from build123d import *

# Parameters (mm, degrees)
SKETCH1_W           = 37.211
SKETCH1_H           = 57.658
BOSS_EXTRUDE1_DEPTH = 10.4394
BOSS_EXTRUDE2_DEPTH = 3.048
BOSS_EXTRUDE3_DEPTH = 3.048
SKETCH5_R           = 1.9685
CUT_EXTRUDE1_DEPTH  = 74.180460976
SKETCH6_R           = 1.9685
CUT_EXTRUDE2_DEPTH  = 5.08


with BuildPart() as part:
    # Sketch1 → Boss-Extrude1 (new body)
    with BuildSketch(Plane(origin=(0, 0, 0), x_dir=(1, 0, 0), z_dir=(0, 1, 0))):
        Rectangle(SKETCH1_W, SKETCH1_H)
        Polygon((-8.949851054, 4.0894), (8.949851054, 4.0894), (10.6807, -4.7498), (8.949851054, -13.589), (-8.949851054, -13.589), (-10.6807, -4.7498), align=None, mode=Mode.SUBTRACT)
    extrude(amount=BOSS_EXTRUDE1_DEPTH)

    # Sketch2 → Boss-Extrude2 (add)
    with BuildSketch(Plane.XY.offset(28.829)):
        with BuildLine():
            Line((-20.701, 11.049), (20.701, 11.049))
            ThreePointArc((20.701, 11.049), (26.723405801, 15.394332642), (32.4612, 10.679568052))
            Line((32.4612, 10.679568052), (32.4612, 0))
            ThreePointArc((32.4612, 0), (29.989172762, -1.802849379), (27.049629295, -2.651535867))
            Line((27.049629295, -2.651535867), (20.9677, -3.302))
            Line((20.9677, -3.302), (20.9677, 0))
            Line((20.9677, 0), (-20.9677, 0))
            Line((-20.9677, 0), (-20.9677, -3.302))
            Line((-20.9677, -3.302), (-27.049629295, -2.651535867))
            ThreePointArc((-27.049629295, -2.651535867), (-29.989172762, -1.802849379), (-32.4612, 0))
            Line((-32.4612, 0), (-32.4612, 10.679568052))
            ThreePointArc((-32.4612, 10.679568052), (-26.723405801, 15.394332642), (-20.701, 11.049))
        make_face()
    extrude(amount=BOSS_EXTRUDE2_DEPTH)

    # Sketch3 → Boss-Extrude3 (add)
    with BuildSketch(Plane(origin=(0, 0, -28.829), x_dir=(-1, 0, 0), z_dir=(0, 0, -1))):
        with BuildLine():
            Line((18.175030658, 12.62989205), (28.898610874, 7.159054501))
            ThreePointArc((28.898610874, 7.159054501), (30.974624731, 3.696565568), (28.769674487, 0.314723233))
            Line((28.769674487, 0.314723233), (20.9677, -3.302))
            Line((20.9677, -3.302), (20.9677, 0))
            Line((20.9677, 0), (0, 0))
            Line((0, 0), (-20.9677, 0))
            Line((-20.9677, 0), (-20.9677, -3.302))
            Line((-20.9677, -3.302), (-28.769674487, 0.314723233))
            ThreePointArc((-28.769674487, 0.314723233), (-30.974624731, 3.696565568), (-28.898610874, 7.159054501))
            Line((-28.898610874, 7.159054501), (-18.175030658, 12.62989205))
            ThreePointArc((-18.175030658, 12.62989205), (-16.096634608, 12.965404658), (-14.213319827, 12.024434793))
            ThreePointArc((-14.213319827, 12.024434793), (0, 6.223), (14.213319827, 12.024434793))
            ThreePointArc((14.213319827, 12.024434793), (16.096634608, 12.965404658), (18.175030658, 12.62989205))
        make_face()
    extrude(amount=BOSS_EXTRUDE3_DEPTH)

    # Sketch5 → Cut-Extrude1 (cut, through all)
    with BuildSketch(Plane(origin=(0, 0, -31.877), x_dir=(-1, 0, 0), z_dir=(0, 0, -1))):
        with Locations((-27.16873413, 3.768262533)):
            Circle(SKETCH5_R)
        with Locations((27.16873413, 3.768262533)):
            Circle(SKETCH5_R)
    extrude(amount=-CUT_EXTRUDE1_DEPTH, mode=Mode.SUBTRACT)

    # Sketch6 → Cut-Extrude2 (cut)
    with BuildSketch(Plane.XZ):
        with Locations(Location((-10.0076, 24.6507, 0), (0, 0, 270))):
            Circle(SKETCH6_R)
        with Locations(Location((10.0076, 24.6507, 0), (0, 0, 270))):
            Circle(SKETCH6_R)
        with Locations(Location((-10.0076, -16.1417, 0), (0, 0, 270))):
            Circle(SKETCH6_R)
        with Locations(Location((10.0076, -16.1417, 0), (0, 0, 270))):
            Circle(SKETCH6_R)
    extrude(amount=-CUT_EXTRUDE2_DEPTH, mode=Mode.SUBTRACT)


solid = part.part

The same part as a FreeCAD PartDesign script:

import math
import FreeCAD as App
import Part
import Sketcher

V = App.Vector
Q = App.Units.Quantity


def add_polygon(sketch, points):
    """Adds a closed chain of lines whose ends are joined by coincident constraints."""
    first, n = sketch.GeometryCount, len(points)
    for a, b in zip(points, points[1:] + points[:1]):
        sketch.addGeometry(Part.LineSegment(App.Vector(*a, 0), App.Vector(*b, 0)), False)
    for i in range(n):
        sketch.addConstraint(Sketcher.Constraint("Coincident", first + i, 2, first + (i + 1) % n, 1))

doc = App.newDocument("Part")
body = doc.addObject("PartDesign::Body", "Body")

sketch1 = doc.addObject("Sketcher::SketchObject", "Sketch")
body.addObject(sketch1)
sketch1.AttachmentSupport = (doc.XZ_Plane, [""])
sketch1.MapMode = "FlatFace"
add_polygon(sketch1, [(-19, -29), (-19, 29), (19, 29), (19, -29)])
add_polygon(sketch1, [(-11, 5), (-9, -4), (9, -4), (11, 5), (9, 14), (-9, 14)])
sketch1.addConstraint(Sketcher.Constraint("Vertical", 0))
sketch1.addConstraint(Sketcher.Constraint("Horizontal", 1))
sketch1.addConstraint(Sketcher.Constraint("Vertical", 2))
sketch1.addConstraint(Sketcher.Constraint("Horizontal", 3))
sketch1.addConstraint(Sketcher.Constraint("Horizontal", 5))
sketch1.addConstraint(Sketcher.Constraint("Horizontal", 8))
sketch1.addConstraint(Sketcher.Constraint("Symmetric", 0, 2, 2, 2, -1, 1))
sketch1.addConstraint(Sketcher.Constraint("Symmetric", 6, 2, 9, 2, -2))
sketch1.addConstraint(Sketcher.Constraint("Parallel", 4, 7))
sketch1.addConstraint(Sketcher.Constraint("Parallel", 6, 9))
sketch1.addConstraint(Sketcher.Constraint("Vertical", 5, 2, 7, 2))
sketch1.addConstraint(Sketcher.Constraint("Vertical", 4, 2, 8, 2))
sketch1.addConstraint(Sketcher.Constraint("DistanceY", 0, 1, 0, 2, Q("2.27 in")))
sketch1.addConstraint(Sketcher.Constraint("DistanceY", 7, 2, 1, 2, Q("0.6 in")))
sketch1.addConstraint(Sketcher.Constraint("DistanceX", 1, 1, 1, 2, Q("1.465 in")))
sketch1.addConstraint(Sketcher.Constraint("DistanceY", 4, 2, -1, 1, Q("0.161 in")))
sketch1.addConstraint(Sketcher.Constraint("DistanceX", 6, 2, 1, 2, Q("0.312 in")))
sketch1.addConstraint(Sketcher.Constraint("Distance", 4, 9.007069))
pad1 = doc.addObject("PartDesign::Pad", "Pad")
body.addObject(pad1)
pad1.Profile = sketch1
pad1.Length = Q("0.411 in")
pad1.Reversed = True

sketch2 = doc.addObject("Sketcher::SketchObject", "Sketch001")
body.addObject(sketch2)
sketch2.AttachmentSupport = (doc.XY_Plane, [""])
sketch2.MapMode = "FlatFace"
sketch2.AttachmentOffset = App.Placement(V(0, 0, 1.135 * 25.4), App.Rotation())
sketch2.addGeometry(Part.LineSegment(V(20.7, 11, 0), V(-20.7, 11, 0)), False)
sketch2.addGeometry(Part.ArcOfCircle(Part.Circle(V(-26.5, 9.3, 0), V(0, 0, 1), 6.1), math.radians(17), math.radians(167)), False)
sketch2.addGeometry(Part.LineSegment(V(-32.5, 10.7, 0), V(-32.5, 0, 0)), False)
sketch2.addGeometry(Part.ArcOfCircle(Part.Circle(V(-26.1, 6.1, 0), V(0, 0, 1), 8.8), math.radians(-136), math.radians(-96)), False)
sketch2.addGeometry(Part.LineSegment(V(-27, -2.7, 0), V(-21, -3.3, 0)), False)
sketch2.addGeometry(Part.LineSegment(V(-21, -3.3, 0), V(-21, 0, 0)), False)
sketch2.addGeometry(Part.LineSegment(V(-21, 0, 0), V(21, 0, 0)), False)
sketch2.addGeometry(Part.LineSegment(V(21, 0, 0), V(21, -3.3, 0)), False)
sketch2.addGeometry(Part.LineSegment(V(21, -3.3, 0), V(27, -2.7, 0)), False)
sketch2.addGeometry(Part.ArcOfCircle(Part.Circle(V(26.1, 6.1, 0), V(0, 0, 1), 8.8), math.radians(-84), math.radians(-44)), False)
sketch2.addGeometry(Part.LineSegment(V(32.5, 0, 0), V(32.5, 10.7, 0)), False)
sketch2.addGeometry(Part.ArcOfCircle(Part.Circle(V(26.5, 9.3, 0), V(0, 0, 1), 6.1), math.radians(13), math.radians(163)), False)
sketch2.addConstraint(Sketcher.Constraint("Coincident", 0, 2, 1, 1))
sketch2.addConstraint(Sketcher.Constraint("Coincident", 1, 2, 2, 1))
sketch2.addConstraint(Sketcher.Constraint("Coincident", 2, 2, 3, 1))
sketch2.addConstraint(Sketcher.Constraint("Tangent", 3, 2, 4, 1))
sketch2.addConstraint(Sketcher.Constraint("Coincident", 4, 2, 5, 1))
sketch2.addConstraint(Sketcher.Constraint("Coincident", 5, 2, 6, 1))
sketch2.addConstraint(Sketcher.Constraint("Coincident", 6, 2, 7, 1))
sketch2.addConstraint(Sketcher.Constraint("Coincident", 7, 2, 8, 1))
sketch2.addConstraint(Sketcher.Constraint("Tangent", 8, 2, 9, 1))
sketch2.addConstraint(Sketcher.Constraint("Coincident", 9, 2, 10, 1))
sketch2.addConstraint(Sketcher.Constraint("Coincident", 10, 2, 11, 1))
sketch2.addConstraint(Sketcher.Constraint("Coincident", 11, 2, 0, 1))
sketch2.addConstraint(Sketcher.Constraint("Horizontal", 0))
sketch2.addConstraint(Sketcher.Constraint("Vertical", 2))
sketch2.addConstraint(Sketcher.Constraint("Vertical", 5))
sketch2.addConstraint(Sketcher.Constraint("Horizontal", 6))
sketch2.addConstraint(Sketcher.Constraint("Vertical", 7))
sketch2.addConstraint(Sketcher.Constraint("Vertical", 10))
sketch2.addConstraint(Sketcher.Constraint("Equal", 3, 9))
sketch2.addConstraint(Sketcher.Constraint("Equal", 1, 11))
sketch2.addConstraint(Sketcher.Constraint("Symmetric", 5, 2, 6, 2, -1, 1))
sketch2.addConstraint(Sketcher.Constraint("Symmetric", 2, 2, 9, 2, -1, 1))
sketch2.addConstraint(Sketcher.Constraint("Symmetric", 3, 3, 9, 3, -2))
sketch2.addConstraint(Sketcher.Constraint("Symmetric", 1, 3, 11, 3, -2))
sketch2.addConstraint(Sketcher.Constraint("Horizontal", 4, 2, 7, 2))
sketch2.addConstraint(Sketcher.Constraint("DistanceX", 0, 2, 0, 1, Q("1.63 in")))
sketch2.addConstraint(Sketcher.Constraint("DistanceY", 5, 1, 5, 2, Q("0.13 in")))
sketch2.addConstraint(Sketcher.Constraint("DistanceX", 6, 1, 6, 2, Q("1.651 in")))
sketch2.addConstraint(Sketcher.Constraint("DistanceY", -1, 1, 0, 2, Q("0.435 in")))
sketch2.addConstraint(Sketcher.Constraint("DistanceX", 1, 2, -1, 1, Q("1.278 in")))
sketch2.addConstraint(Sketcher.Constraint("Radius", 1, 6.084272))
sketch2.addConstraint(Sketcher.Constraint("Radius", 3, 8.810168))
sketch2.addConstraint(Sketcher.Constraint("DistanceY", 2, 2, 2, 1, 10.679568))
sketch2.addConstraint(Sketcher.Constraint("DistanceX", 3, 2, -1, 1, 27.049629))
pad2 = doc.addObject("PartDesign::Pad", "Pad001")
body.addObject(pad2)
pad2.Profile = sketch2
pad2.Length = Q("0.12 in")

sketch3 = doc.addObject("Sketcher::SketchObject", "Sketch002")
body.addObject(sketch3)
sketch3.AttachmentSupport = (doc.XY_Plane, [""])
sketch3.MapMode = "FlatFace"
sketch3.AttachmentOffset = App.Placement(V(0, 0, -1.135 * 25.4), App.Rotation())
sketch3.addGeometry(Part.LineSegment(V(-28.9, 7.2, 0), V(-18.2, 12.6, 0)), False)
sketch3.addGeometry(Part.ArcOfCircle(Part.Circle(V(-16.6, 9.6, 0), V(0, 0, 1), 3.4), math.radians(46), math.radians(117)), False)
sketch3.addGeometry(Part.ArcOfCircle(Part.Circle(V(0, 26.5, 0), V(0, 0, 1), 20.3), math.radians(-134), math.radians(-46)), False)
sketch3.addGeometry(Part.ArcOfCircle(Part.Circle(V(16.6, 9.6, 0), V(0, 0, 1), 3.4), math.radians(63), math.radians(134)), False)
sketch3.addGeometry(Part.LineSegment(V(18.2, 12.6, 0), V(28.9, 7.2, 0)), False)
sketch3.addGeometry(Part.ArcOfCircle(Part.Circle(V(27.2, 3.8, 0), V(0, 0, 1), 3.8), math.radians(-65), math.radians(63)), False)
sketch3.addGeometry(Part.LineSegment(V(28.8, 0.3, 0), V(21, -3.3, 0)), False)
sketch3.addGeometry(Part.LineSegment(V(21, -3.3, 0), V(21, 0, 0)), False)
sketch3.addGeometry(Part.LineSegment(V(21, 0, 0), V(-21, 0, 0)), False)
sketch3.addGeometry(Part.LineSegment(V(-21, 0, 0), V(-21, -3.3, 0)), False)
sketch3.addGeometry(Part.LineSegment(V(-21, -3.3, 0), V(-28.8, 0.3, 0)), False)
sketch3.addGeometry(Part.ArcOfCircle(Part.Circle(V(-27.2, 3.8, 0), V(0, 0, 1), 3.8), math.radians(117), math.radians(245)), False)
sketch3.addConstraint(Sketcher.Constraint("Tangent", 0, 2, 1, 2))
sketch3.addConstraint(Sketcher.Constraint("Tangent", 1, 1, 2, 1))
sketch3.addConstraint(Sketcher.Constraint("Tangent", 2, 2, 3, 2))
sketch3.addConstraint(Sketcher.Constraint("Tangent", 3, 1, 4, 1))
sketch3.addConstraint(Sketcher.Constraint("Tangent", 4, 2, 5, 2))
sketch3.addConstraint(Sketcher.Constraint("Tangent", 5, 1, 6, 1))
sketch3.addConstraint(Sketcher.Constraint("Coincident", 6, 2, 7, 1))
sketch3.addConstraint(Sketcher.Constraint("Coincident", 7, 2, 8, 1))
sketch3.addConstraint(Sketcher.Constraint("Coincident", 8, 2, 9, 1))
sketch3.addConstraint(Sketcher.Constraint("Coincident", 9, 2, 10, 1))
sketch3.addConstraint(Sketcher.Constraint("Tangent", 10, 2, 11, 2))
sketch3.addConstraint(Sketcher.Constraint("Tangent", 11, 1, 0, 1))
sketch3.addConstraint(Sketcher.Constraint("Vertical", 7))
sketch3.addConstraint(Sketcher.Constraint("Horizontal", 8))
sketch3.addConstraint(Sketcher.Constraint("Vertical", 9))
sketch3.addConstraint(Sketcher.Constraint("Equal", 1, 3))
sketch3.addConstraint(Sketcher.Constraint("Equal", 5, 11))
sketch3.addConstraint(Sketcher.Constraint("Symmetric", 7, 2, 8, 2, -1, 1))
sketch3.addConstraint(Sketcher.Constraint("Symmetric", 1, 3, 3, 3, -2))
sketch3.addConstraint(Sketcher.Constraint("Symmetric", 5, 3, 11, 3, -2))
sketch3.addConstraint(Sketcher.Constraint("Horizontal", 6, 2, 9, 2))
sketch3.addConstraint(Sketcher.Constraint("DistanceY", 7, 1, 7, 2, Q("0.13 in")))
sketch3.addConstraint(Sketcher.Constraint("DistanceX", 8, 2, 8, 1, Q("1.651 in")))
sketch3.addConstraint(Sketcher.Constraint("Radius", 1, 3.432423))
sketch3.addConstraint(Sketcher.Constraint("Radius", 2, 20.311795))
sketch3.addConstraint(Sketcher.Constraint("Radius", 5, 3.806566))
sketch3.addConstraint(Sketcher.Constraint("DistanceX", 1, 1, 3, 3, 30.828501))
sketch3.addConstraint(Sketcher.Constraint("Distance", 0, 12.03849))
sketch3.addConstraint(Sketcher.Constraint("DistanceX", 0, 2, -1, 1, 18.175031))
sketch3.addConstraint(Sketcher.Constraint("DistanceX", 5, 3, 5, 1, 1.60094))
pad3 = doc.addObject("PartDesign::Pad", "Pad002")
body.addObject(pad3)
pad3.Profile = sketch3
pad3.Length = Q("0.12 in")
pad3.Reversed = True

sketch4 = doc.addObject("Sketcher::SketchObject", "Sketch003")
body.addObject(sketch4)
sketch4.AttachmentSupport = (doc.XY_Plane, [""])
sketch4.MapMode = "FlatFace"
sketch4.AttachmentOffset = App.Placement(V(0, 0, -1.255 * 25.4), App.Rotation())
sketch4.addGeometry(Part.Circle(V(27.2, 3.8, 0), V(0, 0, 1), 2), False)
sketch4.addGeometry(Part.Circle(V(-27.2, 3.8, 0), V(0, 0, 1), 2), False)
sketch4.addConstraint(Sketcher.Constraint("Equal", 0, 1))
sketch4.addConstraint(Sketcher.Constraint("Symmetric", 0, 3, 1, 3, -2))
sketch4.addConstraint(Sketcher.Constraint("Diameter", 0, Q("0.155 in")))
sketch4.addConstraint(Sketcher.Constraint("DistanceX", 1, 3, 0, 3, 54.337468))
sketch4.addConstraint(Sketcher.Constraint("DistanceY", -1, 1, 0, 3, 3.768263))
pocket1 = doc.addObject("PartDesign::Pocket", "Pocket")
body.addObject(pocket1)
pocket1.Profile = sketch4
pocket1.Type = "ThroughAll"
pocket1.Reversed = True

sketch5 = doc.addObject("Sketcher::SketchObject", "Sketch004")
body.addObject(sketch5)
sketch5.AttachmentSupport = (doc.XZ_Plane, [""])
sketch5.MapMode = "FlatFace"
sketch5.addGeometry(Part.Circle(V(-10, 24.7, 0), V(0, 0, 1), 2), False)
sketch5.addGeometry(Part.Circle(V(10, 24.7, 0), V(0, 0, 1), 2), False)
sketch5.addGeometry(Part.Circle(V(-10, -16.1, 0), V(0, 0, 1), 2), False)
sketch5.addGeometry(Part.Circle(V(10, -16.1, 0), V(0, 0, 1), 2), False)
sketch5.addConstraint(Sketcher.Constraint("Equal", 0, 1))
sketch5.addConstraint(Sketcher.Constraint("Equal", 1, 2))
sketch5.addConstraint(Sketcher.Constraint("Equal", 2, 3))
sketch5.addConstraint(Sketcher.Constraint("Symmetric", 0, 3, 1, 3, -2))
sketch5.addConstraint(Sketcher.Constraint("Symmetric", 2, 3, 3, 3, -2))
sketch5.addConstraint(Sketcher.Constraint("Vertical", 0, 3, 2, 3))
sketch5.addConstraint(Sketcher.Constraint("Diameter", 0, Q("0.155 in")))
sketch5.addConstraint(Sketcher.Constraint("DistanceX", 0, 3, -1, 1, Q("0.394 in")))
sketch5.addConstraint(Sketcher.Constraint("DistanceY", 2, 3, 0, 3, Q("1.606 in")))
sketch5.addConstraint(Sketcher.Constraint("DistanceY", -1, 1, 0, 3, Q("0.9705 in")))
pocket2 = doc.addObject("PartDesign::Pocket", "Pocket001")
body.addObject(pocket2)
pocket2.Profile = sketch5
pocket2.Length = Q("0.2 in")

doc.recompute()
